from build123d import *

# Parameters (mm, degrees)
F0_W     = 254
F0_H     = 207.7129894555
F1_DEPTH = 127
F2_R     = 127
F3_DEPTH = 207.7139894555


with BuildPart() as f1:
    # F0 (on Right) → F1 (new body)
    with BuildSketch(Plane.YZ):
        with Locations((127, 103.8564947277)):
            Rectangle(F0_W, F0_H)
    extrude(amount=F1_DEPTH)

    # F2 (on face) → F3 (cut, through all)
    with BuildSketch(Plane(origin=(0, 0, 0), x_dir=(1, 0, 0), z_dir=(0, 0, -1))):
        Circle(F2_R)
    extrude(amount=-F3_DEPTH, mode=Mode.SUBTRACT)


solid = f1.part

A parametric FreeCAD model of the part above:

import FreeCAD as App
import Part
import Sketcher
Q = App.Units.Quantity

doc = App.newDocument("Part")
body = doc.addObject("PartDesign::Body", "Body")

# Sketch on YZ plane
sketch1 = doc.addObject("Sketcher::SketchObject", "Sketch")
body.addObject(sketch1)
sketch1.AttachmentSupport = (doc.YZ_Plane, [""])
sketch1.MapMode = "FlatFace"
sketch1.addGeometry([
    Part.LineSegment(App.Vector(0, 208, 0), App.Vector(0, 0, 0)),
    Part.LineSegment(App.Vector(0, 0, 0), App.Vector(254, 0, 0)),
    Part.LineSegment(App.Vector(254, 0, 0), App.Vector(254, 208, 0)),
    Part.LineSegment(App.Vector(254, 208, 0), App.Vector(0, 208, 0)),
], False)
sketch1.addConstraint([
    Sketcher.Constraint("Coincident", 0, 2, 1, 1),
    Sketcher.Constraint("Coincident", 1, 2, 2, 1),
    Sketcher.Constraint("Coincident", 2, 2, 3, 1),
    Sketcher.Constraint("Coincident", 3, 2, 0, 1),
    Sketcher.Constraint("Vertical", 0),
    Sketcher.Constraint("Horizontal", 1),
    Sketcher.Constraint("Vertical", 2),
    Sketcher.Constraint("Horizontal", 3),
    Sketcher.Constraint("Coincident", 0, 2, -1, 1),
    Sketcher.Constraint("DistanceX", 1, 1, 1, 2, Q("10 in")),
    Sketcher.Constraint("DistanceY", 0, 2, 0, 1, 207.712989),
])
pad1 = doc.addObject("PartDesign::Pad", "Pad")
body.addObject(pad1)
pad1.Profile = sketch1
pad1.Length = Q("5 in")

# Sketch on XY plane
sketch2 = doc.addObject("Sketcher::SketchObject", "Sketch001")
body.addObject(sketch2)
sketch2.AttachmentSupport = (doc.XY_Plane, [""])
sketch2.MapMode = "FlatFace"
sketch2.addGeometry(Part.Circle(App.Vector(0, 0, 0), App.Vector(0, 0, 1), 127), False)
sketch2.addConstraint([
    Sketcher.Constraint("Coincident", 0, 3, -1, 1),
    Sketcher.Constraint("Diameter", 0, Q("10 in")),
])
pocket1 = doc.addObject("PartDesign::Pocket", "Pocket")
body.addObject(pocket1)
pocket1.Profile = sketch2
pocket1.Type = "ThroughAll"
pocket1.Reversed = True

doc.recompute()
